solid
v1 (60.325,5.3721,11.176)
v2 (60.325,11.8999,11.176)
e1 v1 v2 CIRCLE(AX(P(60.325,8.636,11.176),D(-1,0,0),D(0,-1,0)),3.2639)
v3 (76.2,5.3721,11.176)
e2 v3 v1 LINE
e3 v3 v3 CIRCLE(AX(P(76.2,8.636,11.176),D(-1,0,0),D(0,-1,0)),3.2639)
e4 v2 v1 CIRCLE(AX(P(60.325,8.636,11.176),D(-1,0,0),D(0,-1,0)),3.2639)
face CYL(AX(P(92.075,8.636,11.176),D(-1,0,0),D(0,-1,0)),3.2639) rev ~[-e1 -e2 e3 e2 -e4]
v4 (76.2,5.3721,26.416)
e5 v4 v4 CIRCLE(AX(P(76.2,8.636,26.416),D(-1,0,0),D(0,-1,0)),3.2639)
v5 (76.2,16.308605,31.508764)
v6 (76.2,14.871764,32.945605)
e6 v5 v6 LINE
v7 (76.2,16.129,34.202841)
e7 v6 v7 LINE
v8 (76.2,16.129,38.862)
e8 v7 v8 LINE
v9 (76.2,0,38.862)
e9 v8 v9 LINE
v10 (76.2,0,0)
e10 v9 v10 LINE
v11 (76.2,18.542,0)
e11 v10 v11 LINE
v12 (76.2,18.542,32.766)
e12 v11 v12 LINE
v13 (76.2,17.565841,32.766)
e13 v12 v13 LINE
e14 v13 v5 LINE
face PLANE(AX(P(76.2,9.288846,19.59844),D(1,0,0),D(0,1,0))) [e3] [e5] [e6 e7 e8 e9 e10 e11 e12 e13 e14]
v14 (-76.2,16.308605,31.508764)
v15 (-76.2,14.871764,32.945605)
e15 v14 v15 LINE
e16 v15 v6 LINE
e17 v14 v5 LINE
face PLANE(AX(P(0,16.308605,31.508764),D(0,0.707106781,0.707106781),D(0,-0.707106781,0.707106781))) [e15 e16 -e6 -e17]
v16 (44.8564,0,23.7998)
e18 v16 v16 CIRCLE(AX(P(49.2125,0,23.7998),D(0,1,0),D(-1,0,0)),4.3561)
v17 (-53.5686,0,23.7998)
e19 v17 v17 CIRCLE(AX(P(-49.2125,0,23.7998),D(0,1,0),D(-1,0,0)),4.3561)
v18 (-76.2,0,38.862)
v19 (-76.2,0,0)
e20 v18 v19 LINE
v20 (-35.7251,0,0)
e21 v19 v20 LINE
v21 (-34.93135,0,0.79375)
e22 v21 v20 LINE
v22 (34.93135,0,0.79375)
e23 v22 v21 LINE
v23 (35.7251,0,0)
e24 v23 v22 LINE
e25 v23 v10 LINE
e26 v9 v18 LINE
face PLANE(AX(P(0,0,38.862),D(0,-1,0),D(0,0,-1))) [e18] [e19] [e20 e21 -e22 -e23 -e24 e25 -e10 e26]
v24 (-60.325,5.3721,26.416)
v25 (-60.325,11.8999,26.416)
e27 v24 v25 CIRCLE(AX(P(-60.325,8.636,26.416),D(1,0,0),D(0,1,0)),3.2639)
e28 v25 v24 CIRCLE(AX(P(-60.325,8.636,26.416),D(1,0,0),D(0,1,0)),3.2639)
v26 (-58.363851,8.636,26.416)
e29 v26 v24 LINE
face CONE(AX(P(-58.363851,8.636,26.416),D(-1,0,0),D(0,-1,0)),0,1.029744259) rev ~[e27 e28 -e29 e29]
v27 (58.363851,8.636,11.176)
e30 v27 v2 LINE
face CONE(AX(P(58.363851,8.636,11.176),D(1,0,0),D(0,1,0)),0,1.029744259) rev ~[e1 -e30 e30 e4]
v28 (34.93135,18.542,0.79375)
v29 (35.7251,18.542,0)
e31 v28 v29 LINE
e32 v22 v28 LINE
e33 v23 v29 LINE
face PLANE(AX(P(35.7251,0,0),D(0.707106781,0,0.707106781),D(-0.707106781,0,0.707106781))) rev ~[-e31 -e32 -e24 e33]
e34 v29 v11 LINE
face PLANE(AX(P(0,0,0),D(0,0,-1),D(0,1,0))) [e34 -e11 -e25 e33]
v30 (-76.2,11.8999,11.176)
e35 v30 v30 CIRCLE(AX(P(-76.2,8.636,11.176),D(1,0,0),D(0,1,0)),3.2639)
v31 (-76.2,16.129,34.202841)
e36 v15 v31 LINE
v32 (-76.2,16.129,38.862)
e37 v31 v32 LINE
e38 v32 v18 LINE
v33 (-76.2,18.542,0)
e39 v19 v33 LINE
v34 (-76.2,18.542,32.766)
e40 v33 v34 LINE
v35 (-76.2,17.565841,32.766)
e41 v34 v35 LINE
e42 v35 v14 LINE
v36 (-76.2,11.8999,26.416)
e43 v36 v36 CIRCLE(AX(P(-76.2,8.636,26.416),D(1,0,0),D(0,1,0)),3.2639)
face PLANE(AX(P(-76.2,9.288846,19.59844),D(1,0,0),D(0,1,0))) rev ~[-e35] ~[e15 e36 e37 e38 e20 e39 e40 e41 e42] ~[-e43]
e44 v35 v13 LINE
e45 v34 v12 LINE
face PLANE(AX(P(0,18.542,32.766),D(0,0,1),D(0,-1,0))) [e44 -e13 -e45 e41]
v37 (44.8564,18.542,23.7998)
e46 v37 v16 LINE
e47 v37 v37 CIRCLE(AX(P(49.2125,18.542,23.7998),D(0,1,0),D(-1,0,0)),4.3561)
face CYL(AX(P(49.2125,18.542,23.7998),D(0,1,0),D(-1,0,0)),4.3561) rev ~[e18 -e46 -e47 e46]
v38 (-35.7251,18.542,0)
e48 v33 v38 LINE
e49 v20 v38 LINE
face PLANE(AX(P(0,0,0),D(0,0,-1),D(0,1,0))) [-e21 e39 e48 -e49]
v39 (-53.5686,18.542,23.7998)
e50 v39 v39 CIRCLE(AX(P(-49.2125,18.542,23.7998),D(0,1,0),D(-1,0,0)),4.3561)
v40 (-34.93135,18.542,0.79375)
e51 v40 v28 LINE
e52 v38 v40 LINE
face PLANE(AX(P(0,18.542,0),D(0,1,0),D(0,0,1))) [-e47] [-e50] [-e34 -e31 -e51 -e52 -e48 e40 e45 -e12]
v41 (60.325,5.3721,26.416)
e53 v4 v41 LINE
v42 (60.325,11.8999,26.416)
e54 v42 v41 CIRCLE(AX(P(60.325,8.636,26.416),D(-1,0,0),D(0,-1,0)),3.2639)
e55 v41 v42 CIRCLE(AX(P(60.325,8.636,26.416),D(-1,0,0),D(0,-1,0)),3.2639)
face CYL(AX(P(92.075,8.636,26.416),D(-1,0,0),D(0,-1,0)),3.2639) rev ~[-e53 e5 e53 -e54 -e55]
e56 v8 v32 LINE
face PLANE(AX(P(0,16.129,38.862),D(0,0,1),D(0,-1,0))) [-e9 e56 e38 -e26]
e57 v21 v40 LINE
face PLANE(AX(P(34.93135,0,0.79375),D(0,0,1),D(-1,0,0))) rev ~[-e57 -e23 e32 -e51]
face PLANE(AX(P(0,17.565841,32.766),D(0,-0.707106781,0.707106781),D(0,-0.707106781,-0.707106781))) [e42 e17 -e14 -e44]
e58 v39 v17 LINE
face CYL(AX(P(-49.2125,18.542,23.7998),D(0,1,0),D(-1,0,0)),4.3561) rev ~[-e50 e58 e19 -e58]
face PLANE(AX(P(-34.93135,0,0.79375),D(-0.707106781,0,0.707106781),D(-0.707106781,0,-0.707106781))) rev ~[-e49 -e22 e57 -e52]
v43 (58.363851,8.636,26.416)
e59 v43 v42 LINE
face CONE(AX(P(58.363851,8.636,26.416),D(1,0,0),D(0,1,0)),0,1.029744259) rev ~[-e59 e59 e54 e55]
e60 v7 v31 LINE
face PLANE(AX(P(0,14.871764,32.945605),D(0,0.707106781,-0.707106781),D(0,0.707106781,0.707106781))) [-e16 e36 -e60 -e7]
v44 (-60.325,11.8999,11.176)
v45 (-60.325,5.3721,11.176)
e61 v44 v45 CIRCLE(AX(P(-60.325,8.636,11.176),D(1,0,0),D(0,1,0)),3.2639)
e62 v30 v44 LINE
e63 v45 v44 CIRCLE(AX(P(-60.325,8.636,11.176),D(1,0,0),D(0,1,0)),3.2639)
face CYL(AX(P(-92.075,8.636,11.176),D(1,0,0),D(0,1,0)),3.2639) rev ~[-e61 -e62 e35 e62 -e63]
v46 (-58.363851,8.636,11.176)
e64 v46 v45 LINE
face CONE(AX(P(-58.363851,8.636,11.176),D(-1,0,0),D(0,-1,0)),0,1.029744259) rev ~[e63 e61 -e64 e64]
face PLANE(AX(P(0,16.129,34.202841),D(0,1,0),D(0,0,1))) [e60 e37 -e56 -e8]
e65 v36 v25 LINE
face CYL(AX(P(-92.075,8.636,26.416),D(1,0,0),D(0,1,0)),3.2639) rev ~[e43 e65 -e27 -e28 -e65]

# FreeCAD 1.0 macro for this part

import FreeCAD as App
import Part
import Sketcher
from FreeCAD import Vector
Q = App.Units.Quantity


def add_polygon(sketch, points):
    """Adds a closed chain of lines whose ends are joined by coincident constraints."""
    first, n = sketch.GeometryCount, len(points)
    for a, b in zip(points, points[1:] + points[:1]):
        sketch.addGeometry(Part.LineSegment(App.Vector(*a, 0), App.Vector(*b, 0)), False)
    for i in range(n):
        sketch.addConstraint(Sketcher.Constraint("Coincident", first + i, 2, first + (i + 1) % n, 1))

doc = App.newDocument("Part")
body = doc.addObject("PartDesign::Body", "Body")

# Sketch on YZ plane
sketch1 = body.newObject("Sketcher::SketchObject", "Sketch")
sketch1.AttachmentSupport = (doc.getObject("YZ_Plane"), [""])
sketch1.MapMode = "FlatFace"
add_polygon(sketch1, [(0, 38.862), (0, 0), (18.542, 0), (18.542, 32.766), (17.565841, 32.766), (16.308605, 31.508764), (14.871764, 32.945605), (16.129, 34.202841), (16.129, 38.862)])  # lines 0-8
sketch1.addConstraint(Sketcher.Constraint("Vertical", 0))
sketch1.addConstraint(Sketcher.Constraint("Horizontal", 1))
sketch1.addConstraint(Sketcher.Constraint("Vertical", 2))
sketch1.addConstraint(Sketcher.Constraint("Horizontal", 3))
sketch1.addConstraint(Sketcher.Constraint("Vertical", 7))
sketch1.addConstraint(Sketcher.Constraint("Horizontal", 8))
sketch1.addConstraint(Sketcher.Constraint("Coincident", 0, 2, -1, 1))
sketch1.addConstraint(Sketcher.Constraint("Perpendicular", 4, 5))
sketch1.addConstraint(Sketcher.Constraint("Perpendicular", 5, 6))
sketch1.addConstraint(Sketcher.Constraint("Equal", 4, 6))
sketch1.addConstraint(Sketcher.Constraint("Angle", 4, Q("-135 deg")))
sketch1.addConstraint(Sketcher.Constraint("DistanceX", 1, 1, 1, 2, Q("0.73 in")))
sketch1.addConstraint(Sketcher.Constraint("DistanceY", 0, 2, 0, 1, Q("1.53 in")))
sketch1.addConstraint(Sketcher.Constraint("DistanceY", 2, 1, 2, 2, Q("1.29 in")))
sketch1.addConstraint(Sketcher.Constraint("Distance", 4, Q("0.07 in")))
sketch1.addConstraint(Sketcher.Constraint("Distance", 5, Q("0.08 in")))
sketch1.addConstraint(Sketcher.Constraint("DistanceX", 8, 2, 8, 1, Q("0.635 in")))
pad1 = body.newObject("PartDesign::Pad", "Pad")
pad1.Profile = sketch1
pad1.Type = "TwoLengths"
pad1.Length = Q("3 in")
pad1.Length2 = Q("3 in")

# Sketch on YZ plane
sketch2 = body.newObject("Sketcher::SketchObject", "Sketch001")
sketch2.AttachmentSupport = (doc.getObject("YZ_Plane"), [""])
sketch2.MapMode = "FlatFace"
sketch2.AttachmentOffset = App.Placement(Vector(0, 0, 3 * 25.4), App.Rotation())
sketch2.addGeometry(Part.Circle(Vector(8.636, 11.176, 0), Vector(0, 0, 1), 3.2639), False)
sketch2.addGeometry(Part.Circle(Vector(8.636, 26.416, 0), Vector(0, 0, 1), 3.2639), False)
sketch2.addConstraint(Sketcher.Constraint("Equal", 0, 1))
sketch2.addConstraint(Sketcher.Constraint("Vertical", 0, 3, 1, 3))
sketch2.addConstraint(Sketcher.Constraint("Diameter", 0, Q("0.257 in")))
sketch2.addConstraint(Sketcher.Constraint("DistanceY", 0, 3, 1, 3, Q("0.6 in")))
sketch2.addConstraint(Sketcher.Constraint("DistanceX", -1, 1, 0, 3, Q("0.34 in")))
sketch2.addConstraint(Sketcher.Constraint("DistanceY", -1, 1, 0, 3, Q("0.44 in")))
doc.recompute()
hole = body.newObject("PartDesign::Hole", "Hole")
hole.Profile = sketch2
hole.ThreadType = "None"
hole.Diameter = Q("0.257 in")
hole.DepthType = "Dimension"
hole.Depth = Q("0.625 in")
hole.DrillPoint = "Angled"
hole.DrillPointAngle = 118

# Sketch on YZ plane
sketch3 = body.newObject("Sketcher::SketchObject", "Sketch002")
sketch3.AttachmentSupport = (doc.getObject("YZ_Plane"), [""])
sketch3.MapMode = "FlatFace"
sketch3.AttachmentOffset = App.Placement(Vector(0, 0, -3 * 25.4), App.Rotation())
sketch3.addGeometry(Part.Circle(Vector(8.636, 26.416, 0), Vector(0, 0, 1), 3.2639), False)
sketch3.addGeometry(Part.Circle(Vector(8.636, 11.176, 0), Vector(0, 0, 1), 3.2639), False)
sketch3.addConstraint(Sketcher.Constraint("Equal", 0, 1))
sketch3.addConstraint(Sketcher.Constraint("Vertical", 0, 3, 1, 3))
sketch3.addConstraint(Sketcher.Constraint("Diameter", 0, Q("0.257 in")))
sketch3.addConstraint(Sketcher.Constraint("DistanceY", 1, 3, 0, 3, Q("0.6 in")))
sketch3.addConstraint(Sketcher.Constraint("DistanceX", -1, 1, 0, 3, Q("0.34 in")))
sketch3.addConstraint(Sketcher.Constraint("DistanceY", -1, 1, 0, 3, Q("1.04 in")))
doc.recompute()
hole2 = body.newObject("PartDesign::Hole", "Hole001")
hole2.Profile = sketch3
hole2.ThreadType = "None"
hole2.Diameter = Q("0.257 in")
hole2.DepthType = "Dimension"
hole2.Depth = Q("0.625 in")
hole2.DrillPoint = "Angled"
hole2.DrillPointAngle = 118
hole2.Reversed = True

# Sketch on XZ plane
sketch4 = body.newObject("Sketcher::SketchObject", "Sketch003")
sketch4.AttachmentSupport = (doc.getObject("XZ_Plane"), [""])
sketch4.MapMode = "FlatFace"
add_polygon(sketch4, [(-34.93135, 0.79375), (-35.7251, 0), (35.7251, 0), (34.93135, 0.79375)])  # lines 0-3
sketch4.addConstraint(Sketcher.Constraint("Horizontal", 1))
sketch4.addConstraint(Sketcher.Constraint("Horizontal", 3))
sketch4.addConstraint(Sketcher.Constraint("Symmetric", 0, 2, 1, 2, -1, 1))
sketch4.addConstraint(Sketcher.Constraint("Perpendicular", 0, 2))
sketch4.addConstraint(Sketcher.Constraint("Equal", 0, 2))
sketch4.addConstraint(Sketcher.Constraint("DistanceX", 1, 1, 1, 2, Q("2.813 in")))
sketch4.addConstraint(Sketcher.Constraint("DistanceX", 3, 2, 3, 1, Q("2.7505 in")))
pocket1 = body.newObject("PartDesign::Pocket", "Pocket")
pocket1.Profile = sketch4
pocket1.Type = "ThroughAll"

# Sketch on XZ plane
sketch5 = body.newObject("Sketcher::SketchObject", "Sketch004")
sketch5.AttachmentSupport = (doc.getObject("XZ_Plane"), [""])
sketch5.MapMode = "FlatFace"
sketch5.AttachmentOffset = App.Placement(Vector(0, 0, -0.73 * 25.4), App.Rotation())
sketch5.addGeometry(Part.Circle(Vector(49.2125, 23.7998, 0), Vector(0, 0, 1), 4.3561), False)
sketch5.addGeometry(Part.Circle(Vector(-49.2125, 23.7998, 0), Vector(0, 0, 1), 4.3561), False)
sketch5.addConstraint(Sketcher.Constraint("Equal", 0, 1))
sketch5.addConstraint(Sketcher.Constraint("Symmetric", 0, 3, 1, 3, -2))
sketch5.addConstraint(Sketcher.Constraint("Diameter", 0, Q("0.343 in")))
sketch5.addConstraint(Sketcher.Constraint("DistanceX", -1, 1, 0, 3, Q("1.9375 in")))
sketch5.addConstraint(Sketcher.Constraint("DistanceY", -1, 1, 0, 3, Q("0.937 in")))
pocket2 = body.newObject("PartDesign::Pocket", "Pocket001")
pocket2.Profile = sketch5
pocket2.Type = "ThroughAll"
pocket2.Reversed = True

doc.recompute()
